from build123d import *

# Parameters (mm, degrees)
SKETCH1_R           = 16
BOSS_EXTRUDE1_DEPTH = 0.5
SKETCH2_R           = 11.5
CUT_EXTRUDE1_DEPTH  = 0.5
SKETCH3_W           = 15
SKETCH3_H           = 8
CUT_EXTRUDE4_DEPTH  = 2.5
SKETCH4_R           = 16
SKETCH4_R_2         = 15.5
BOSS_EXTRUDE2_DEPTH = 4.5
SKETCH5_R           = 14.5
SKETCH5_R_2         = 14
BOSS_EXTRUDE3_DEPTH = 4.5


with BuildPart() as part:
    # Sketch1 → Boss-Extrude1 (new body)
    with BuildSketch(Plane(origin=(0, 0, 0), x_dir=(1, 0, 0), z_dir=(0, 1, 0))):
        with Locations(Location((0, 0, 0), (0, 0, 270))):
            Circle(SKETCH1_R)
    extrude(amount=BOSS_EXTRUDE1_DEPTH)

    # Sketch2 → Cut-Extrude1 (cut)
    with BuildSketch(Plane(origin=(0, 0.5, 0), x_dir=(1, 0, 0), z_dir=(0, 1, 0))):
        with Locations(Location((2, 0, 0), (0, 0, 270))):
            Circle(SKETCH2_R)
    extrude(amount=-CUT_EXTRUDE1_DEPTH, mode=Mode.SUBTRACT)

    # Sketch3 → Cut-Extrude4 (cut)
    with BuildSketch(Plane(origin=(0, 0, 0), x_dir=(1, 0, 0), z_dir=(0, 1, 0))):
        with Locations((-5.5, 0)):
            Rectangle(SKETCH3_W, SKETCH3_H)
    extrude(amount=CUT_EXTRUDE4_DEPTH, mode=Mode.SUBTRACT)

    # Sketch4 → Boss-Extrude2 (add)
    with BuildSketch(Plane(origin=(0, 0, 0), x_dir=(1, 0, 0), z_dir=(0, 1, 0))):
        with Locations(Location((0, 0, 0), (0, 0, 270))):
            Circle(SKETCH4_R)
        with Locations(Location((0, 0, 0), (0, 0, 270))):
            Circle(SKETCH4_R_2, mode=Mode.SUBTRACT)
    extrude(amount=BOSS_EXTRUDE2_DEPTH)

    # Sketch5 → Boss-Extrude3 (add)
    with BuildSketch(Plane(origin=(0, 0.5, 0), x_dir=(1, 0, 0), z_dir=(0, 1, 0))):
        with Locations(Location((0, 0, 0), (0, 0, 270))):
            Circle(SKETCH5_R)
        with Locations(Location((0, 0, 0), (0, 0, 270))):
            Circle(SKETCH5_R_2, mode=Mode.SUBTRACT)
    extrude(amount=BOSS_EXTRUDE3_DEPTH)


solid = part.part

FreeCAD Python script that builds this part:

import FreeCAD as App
import Part
import Sketcher
from FreeCAD import Vector

doc = App.newDocument("Part")
body = doc.addObject("PartDesign::Body", "Body")

sketch1 = body.newObject("Sketcher::SketchObject", "Sketch")
sketch1.AttachmentSupport = (doc.getObject("XZ_Plane"), [""])
sketch1.MapMode = "FlatFace"
sketch1.addGeometry(Part.Circle(Vector(0, 0, 0), Vector(0, 0, 1), 16), False)
sketch1.addConstraint([
    Sketcher.Constraint("Coincident", 0, 3, -1, 1),
    Sketcher.Constraint("Diameter", 0, 32.0),
])
pad1 = body.newObject("PartDesign::Pad", "Pad")
pad1.Profile = sketch1
pad1.Length = 0.5
pad1.Reversed = True

sketch2 = body.newObject("Sketcher::SketchObject", "Sketch001")
sketch2.AttachmentSupport = (doc.getObject("XZ_Plane"), [""])
sketch2.MapMode = "FlatFace"
sketch2.AttachmentOffset = App.Placement(Vector(0, 0, -0.5), App.Rotation())
sketch2.addGeometry(Part.Circle(Vector(2, 0, 0), Vector(0, 0, 1), 12), False)
sketch2.addConstraint([
    Sketcher.Constraint("PointOnObject", 0, 3, -1),
    Sketcher.Constraint("Diameter", 0, 23.0),
    Sketcher.Constraint("DistanceX", -1, 1, 0, 3, 2.0),
])
pocket1 = body.newObject("PartDesign::Pocket", "Pocket")
pocket1.Profile = sketch2
pocket1.Length = 0.5
pocket1.Reversed = True

sketch3 = body.newObject("Sketcher::SketchObject", "Sketch002")
sketch3.AttachmentSupport = (doc.getObject("XZ_Plane"), [""])
sketch3.MapMode = "FlatFace"
sketch3.addGeometry([
    Part.LineSegment(Vector(-13, -4, 0), Vector(-13, 4, 0)),
    Part.LineSegment(Vector(-13, 4, 0), Vector(2, 4, 0)),
    Part.LineSegment(Vector(2, 4, 0), Vector(2, -4, 0)),
    Part.LineSegment(Vector(2, -4, 0), Vector(-13, -4, 0)),
], False)
sketch3.addConstraint([
    Sketcher.Constraint("Coincident", 0, 2, 1, 1),
    Sketcher.Constraint("Coincident", 1, 2, 2, 1),
    Sketcher.Constraint("Coincident", 2, 2, 3, 1),
    Sketcher.Constraint("Coincident", 3, 2, 0, 1),
    Sketcher.Constraint("Vertical", 0),
    Sketcher.Constraint("Horizontal", 1),
    Sketcher.Constraint("Vertical", 2),
    Sketcher.Constraint("Horizontal", 3),
    Sketcher.Constraint("DistanceX", 1, 1, 1, 2, 15.0),
    Sketcher.Constraint("DistanceY", 0, 1, 0, 2, 8.0),
    Sketcher.Constraint("DistanceX", 0, 2, -1, 1, 13.0),
    Sketcher.Constraint("DistanceY", -1, 1, 0, 2, 4.0),
])
pocket2 = body.newObject("PartDesign::Pocket", "Pocket001")
pocket2.Profile = sketch3
pocket2.Length = 2.5

sketch4 = body.newObject("Sketcher::SketchObject", "Sketch003")
sketch4.AttachmentSupport = (doc.getObject("XZ_Plane"), [""])
sketch4.MapMode = "FlatFace"
sketch4.addGeometry([
    Part.Circle(Vector(0, 0, 0), Vector(0, 0, 1), 16),
    Part.Circle(Vector(0, 0, 0), Vector(0, 0, 1), 16),
], False)
sketch4.addConstraint([
    Sketcher.Constraint("Coincident", 0, 3, -1, 1),
    Sketcher.Constraint("Coincident", 1, 3, -1, 1),
    Sketcher.Constraint("Diameter", 0, 32.0),
    Sketcher.Constraint("Diameter", 1, 31.0),
])
pad2 = body.newObject("PartDesign::Pad", "Pad001")
pad2.Profile = sketch4
pad2.Length = 4.5
pad2.Reversed = True

sketch5 = body.newObject("Sketcher::SketchObject", "Sketch004")
sketch5.AttachmentSupport = (doc.getObject("XZ_Plane"), [""])
sketch5.MapMode = "FlatFace"
sketch5.AttachmentOffset = App.Placement(Vector(0, 0, -0.5), App.Rotation())
sketch5.addGeometry([
    Part.Circle(Vector(0, 0, 0), Vector(0, 0, 1), 14),
    Part.Circle(Vector(0, 0, 0), Vector(0, 0, 1), 14),
], False)
sketch5.addConstraint([
    Sketcher.Constraint("Coincident", 0, 3, -1, 1),
    Sketcher.Constraint("Coincident", 1, 3, -1, 1),
    Sketcher.Constraint("Diameter", 0, 29.0),
    Sketcher.Constraint("Diameter", 1, 28.0),
])
pad3 = body.newObject("PartDesign::Pad", "Pad002")
pad3.Profile = sketch5
pad3.Length = 4.5
pad3.Reversed = True

doc.recompute()
